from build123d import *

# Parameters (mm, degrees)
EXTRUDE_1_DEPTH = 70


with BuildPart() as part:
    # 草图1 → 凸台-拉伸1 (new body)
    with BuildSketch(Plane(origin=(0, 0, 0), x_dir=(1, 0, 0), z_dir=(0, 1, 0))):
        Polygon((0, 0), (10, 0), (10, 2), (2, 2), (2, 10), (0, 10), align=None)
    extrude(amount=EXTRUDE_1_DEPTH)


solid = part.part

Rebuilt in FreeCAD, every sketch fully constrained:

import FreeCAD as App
import Part
import Sketcher

V = App.Vector


def add_polygon(sketch, points):
    """Adds a closed chain of lines whose ends are joined by coincident constraints."""
    first, n = sketch.GeometryCount, len(points)
    for a, b in zip(points, points[1:] + points[:1]):
        sketch.addGeometry(Part.LineSegment(App.Vector(*a, 0), App.Vector(*b, 0)), False)
    for i in range(n):
        sketch.addConstraint(Sketcher.Constraint("Coincident", first + i, 2, first + (i + 1) % n, 1))

doc = App.newDocument("Part")
body = doc.addObject("PartDesign::Body", "Body")

# Sketch on XZ plane
sketch1 = body.newObject("Sketcher::SketchObject", "Sketch")
sketch1.AttachmentSupport = (doc.getObject("XZ_Plane"), [""])
sketch1.MapMode = "FlatFace"
add_polygon(sketch1, [(0, 0), (10, 0), (10, -2), (2, -2), (2, -10), (0, -10)])  # lines 0-5
sketch1.addConstraint([
    Sketcher.Constraint("Horizontal", 0),
    Sketcher.Constraint("Vertical", 1),
    Sketcher.Constraint("Horizontal", 2),
    Sketcher.Constraint("Vertical", 3),
    Sketcher.Constraint("Horizontal", 4),
    Sketcher.Constraint("Vertical", 5),
    Sketcher.Constraint("Coincident", 5, 2, -1, 1),
    Sketcher.Constraint("Equal", 4, 1),
    Sketcher.Constraint("Equal", 2, 3),
    Sketcher.Constraint("DistanceX", 0, 1, 0, 2, 10.0),
    Sketcher.Constraint("DistanceX", 2, 2, 2, 1, 8.0),
])
pad1 = body.newObject("PartDesign::Pad", "Pad")
pad1.Profile = sketch1
pad1.Length = 70
pad1.Reversed = True

doc.recompute()
